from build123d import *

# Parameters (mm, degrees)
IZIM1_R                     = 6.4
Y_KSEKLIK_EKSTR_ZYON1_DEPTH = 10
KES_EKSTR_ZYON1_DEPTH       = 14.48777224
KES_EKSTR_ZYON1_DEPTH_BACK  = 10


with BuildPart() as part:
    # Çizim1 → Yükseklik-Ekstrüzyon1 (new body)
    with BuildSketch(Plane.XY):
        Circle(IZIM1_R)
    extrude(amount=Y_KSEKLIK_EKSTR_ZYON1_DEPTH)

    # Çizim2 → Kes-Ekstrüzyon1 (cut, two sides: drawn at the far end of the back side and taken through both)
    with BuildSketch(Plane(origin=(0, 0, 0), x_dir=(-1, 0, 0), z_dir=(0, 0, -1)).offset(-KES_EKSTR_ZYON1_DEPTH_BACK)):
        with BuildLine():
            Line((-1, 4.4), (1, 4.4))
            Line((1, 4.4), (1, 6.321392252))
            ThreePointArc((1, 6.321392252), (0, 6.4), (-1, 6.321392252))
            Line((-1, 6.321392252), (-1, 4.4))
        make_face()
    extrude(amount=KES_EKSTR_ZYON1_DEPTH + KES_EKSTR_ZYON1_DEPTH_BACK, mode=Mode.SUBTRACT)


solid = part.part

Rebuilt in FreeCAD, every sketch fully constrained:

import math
import FreeCAD as App
import Part
import Sketcher
from FreeCAD import Vector

doc = App.newDocument("Part")
body = doc.addObject("PartDesign::Body", "Body")

sketch1 = doc.addObject("Sketcher::SketchObject", "Sketch")
body.addObject(sketch1)
sketch1.AttachmentSupport = (doc.XY_Plane, [""])
sketch1.MapMode = "FlatFace"
sketch1.addGeometry(Part.Circle(Vector(0, 0, 0), Vector(0, 0, 1), 6.4), False)
sketch1.addConstraint(Sketcher.Constraint("Coincident", 0, 3, -1, 1))
sketch1.addConstraint(Sketcher.Constraint("Diameter", 0, 12.8))
pad1 = doc.addObject("PartDesign::Pad", "Pad")
body.addObject(pad1)
pad1.Profile = sketch1
pad1.Length = 10

sketch2 = doc.addObject("Sketcher::SketchObject", "Sketch001")
body.addObject(sketch2)
sketch2.AttachmentSupport = (doc.XY_Plane, [""])
sketch2.MapMode = "FlatFace"
sketch2.addGeometry(Part.LineSegment(Vector(1, 4.4, 0), Vector(-1, 4.4, 0)), False)
sketch2.addGeometry(Part.LineSegment(Vector(-1, 4.4, 0), Vector(-1, 6.321392, 0)), False)
sketch2.addGeometry(Part.ArcOfCircle(Part.Circle(Vector(0, 0, 0), Vector(0, 0, 1), 6.4), math.radians(81.010701), math.radians(98.989299)), False)
sketch2.addGeometry(Part.LineSegment(Vector(1, 6.321392, 0), Vector(1, 4.4, 0)), False)
sketch2.addConstraint(Sketcher.Constraint("Coincident", 0, 2, 1, 1))
sketch2.addConstraint(Sketcher.Constraint("Coincident", 1, 2, 2, 2))
sketch2.addConstraint(Sketcher.Constraint("Coincident", 2, 1, 3, 1))
sketch2.addConstraint(Sketcher.Constraint("Coincident", 3, 2, 0, 1))
sketch2.addConstraint(Sketcher.Constraint("Horizontal", 0))
sketch2.addConstraint(Sketcher.Constraint("Vertical", 1))
sketch2.addConstraint(Sketcher.Constraint("Vertical", 3))
sketch2.addConstraint(Sketcher.Constraint("Coincident", 2, 3, -1, 1))
sketch2.addConstraint(Sketcher.Constraint("Horizontal", 1, 2, 2, 1))
sketch2.addConstraint(Sketcher.Constraint("Radius", 2, 6.4))
sketch2.addConstraint(Sketcher.Constraint("DistanceX", 0, 2, 0, 1, 2.0))
sketch2.addConstraint(Sketcher.Constraint("DistanceY", -1, 1, 0, 2, 4.4))
pocket1 = doc.addObject("PartDesign::Pocket", "Pocket")
body.addObject(pocket1)
pocket1.Profile = sketch2
pocket1.Type = "ThroughAll"
pocket1.Midplane = True

doc.recompute()
